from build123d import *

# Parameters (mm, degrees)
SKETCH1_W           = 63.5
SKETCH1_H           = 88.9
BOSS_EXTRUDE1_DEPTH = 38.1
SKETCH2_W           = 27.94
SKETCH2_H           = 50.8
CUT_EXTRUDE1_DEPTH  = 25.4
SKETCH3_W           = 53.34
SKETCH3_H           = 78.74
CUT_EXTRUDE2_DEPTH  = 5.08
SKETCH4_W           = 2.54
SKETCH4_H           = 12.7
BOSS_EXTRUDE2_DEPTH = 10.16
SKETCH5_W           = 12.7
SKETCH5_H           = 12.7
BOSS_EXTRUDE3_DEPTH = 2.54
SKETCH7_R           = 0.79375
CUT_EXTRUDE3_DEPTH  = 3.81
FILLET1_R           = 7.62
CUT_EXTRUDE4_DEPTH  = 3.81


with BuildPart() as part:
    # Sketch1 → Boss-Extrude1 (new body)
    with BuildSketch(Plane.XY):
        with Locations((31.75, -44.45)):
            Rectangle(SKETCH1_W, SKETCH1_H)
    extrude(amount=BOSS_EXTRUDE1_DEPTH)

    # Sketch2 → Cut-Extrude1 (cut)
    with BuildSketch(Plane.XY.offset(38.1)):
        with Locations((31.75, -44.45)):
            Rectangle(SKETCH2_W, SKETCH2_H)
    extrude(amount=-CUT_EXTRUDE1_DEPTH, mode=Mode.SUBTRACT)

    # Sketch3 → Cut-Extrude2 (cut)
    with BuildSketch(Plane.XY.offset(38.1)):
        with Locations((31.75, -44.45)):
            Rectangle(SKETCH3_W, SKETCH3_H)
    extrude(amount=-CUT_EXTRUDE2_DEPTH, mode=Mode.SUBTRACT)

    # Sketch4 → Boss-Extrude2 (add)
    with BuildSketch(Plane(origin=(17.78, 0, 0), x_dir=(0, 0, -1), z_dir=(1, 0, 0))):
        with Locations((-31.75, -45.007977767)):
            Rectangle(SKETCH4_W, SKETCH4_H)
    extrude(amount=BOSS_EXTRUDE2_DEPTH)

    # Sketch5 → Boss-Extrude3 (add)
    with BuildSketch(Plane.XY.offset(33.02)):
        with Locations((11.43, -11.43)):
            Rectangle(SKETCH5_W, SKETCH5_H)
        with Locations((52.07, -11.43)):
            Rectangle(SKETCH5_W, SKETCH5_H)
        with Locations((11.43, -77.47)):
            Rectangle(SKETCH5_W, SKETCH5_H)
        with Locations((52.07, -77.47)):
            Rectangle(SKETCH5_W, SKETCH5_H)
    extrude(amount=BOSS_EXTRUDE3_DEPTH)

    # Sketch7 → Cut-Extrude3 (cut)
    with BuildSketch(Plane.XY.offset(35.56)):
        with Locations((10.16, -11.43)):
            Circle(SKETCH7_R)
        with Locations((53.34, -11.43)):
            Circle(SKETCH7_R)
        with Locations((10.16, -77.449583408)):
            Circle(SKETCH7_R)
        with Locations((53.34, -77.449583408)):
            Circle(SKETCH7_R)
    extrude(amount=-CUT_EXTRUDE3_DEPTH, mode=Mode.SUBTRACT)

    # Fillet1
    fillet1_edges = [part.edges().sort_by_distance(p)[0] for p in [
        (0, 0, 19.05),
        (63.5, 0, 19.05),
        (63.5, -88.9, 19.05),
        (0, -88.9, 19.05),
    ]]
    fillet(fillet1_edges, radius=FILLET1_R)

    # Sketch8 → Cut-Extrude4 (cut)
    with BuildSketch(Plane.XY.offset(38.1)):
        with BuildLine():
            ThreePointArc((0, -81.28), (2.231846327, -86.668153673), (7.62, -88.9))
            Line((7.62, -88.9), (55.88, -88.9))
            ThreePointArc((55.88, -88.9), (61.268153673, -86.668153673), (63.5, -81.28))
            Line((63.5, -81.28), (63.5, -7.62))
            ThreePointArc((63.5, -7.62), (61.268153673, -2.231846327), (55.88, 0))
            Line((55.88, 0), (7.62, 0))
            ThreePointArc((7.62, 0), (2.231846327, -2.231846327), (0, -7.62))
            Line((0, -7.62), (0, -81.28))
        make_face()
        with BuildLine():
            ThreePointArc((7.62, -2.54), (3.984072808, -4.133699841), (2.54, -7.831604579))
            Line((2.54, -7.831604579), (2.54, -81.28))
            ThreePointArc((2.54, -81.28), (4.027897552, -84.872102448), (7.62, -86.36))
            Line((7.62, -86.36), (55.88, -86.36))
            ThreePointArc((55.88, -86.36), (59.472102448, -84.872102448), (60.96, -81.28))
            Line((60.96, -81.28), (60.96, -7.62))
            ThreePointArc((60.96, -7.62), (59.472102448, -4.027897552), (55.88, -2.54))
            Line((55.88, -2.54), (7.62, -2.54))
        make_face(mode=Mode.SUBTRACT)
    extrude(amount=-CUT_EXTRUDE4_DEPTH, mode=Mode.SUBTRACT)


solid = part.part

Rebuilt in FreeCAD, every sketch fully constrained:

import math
import FreeCAD as App
import Part
import Sketcher

V = App.Vector
Q = App.Units.Quantity


def edges_at(feature, points):
    """Names of the edges that pass closest to the given points."""
    edges = feature.Shape.Edges
    near = lambda p: min(range(len(edges)), key=lambda i: edges[i].distToShape(Part.Vertex(*p))[0])
    return sorted({f"Edge{near(p) + 1}" for p in points})

doc = App.newDocument("Part")
body = doc.addObject("PartDesign::Body", "Body")

# Sketch on XY plane
sketch1 = doc.addObject("Sketcher::SketchObject", "Sketch")
body.addObject(sketch1)
sketch1.AttachmentSupport = (doc.XY_Plane, [""])
sketch1.MapMode = "FlatFace"
sketch1.addGeometry([
    Part.LineSegment(V(0, 0, 0), V(0, -89, 0)),
    Part.LineSegment(V(0, -89, 0), V(64, -89, 0)),
    Part.LineSegment(V(64, -89, 0), V(64, 0, 0)),
    Part.LineSegment(V(64, 0, 0), V(0, 0, 0)),
], False)
sketch1.addConstraint([
    Sketcher.Constraint("Coincident", 0, 2, 1, 1),
    Sketcher.Constraint("Coincident", 1, 2, 2, 1),
    Sketcher.Constraint("Coincident", 2, 2, 3, 1),
    Sketcher.Constraint("Coincident", 3, 2, 0, 1),
    Sketcher.Constraint("Vertical", 0),
    Sketcher.Constraint("Horizontal", 1),
    Sketcher.Constraint("Vertical", 2),
    Sketcher.Constraint("Horizontal", 3),
    Sketcher.Constraint("Coincident", 3, 2, -1, 1),
    Sketcher.Constraint("DistanceX", 1, 1, 1, 2, Q("2.5 in")),
    Sketcher.Constraint("DistanceY", 0, 2, 0, 1, Q("3.5 in")),
])
pad1 = doc.addObject("PartDesign::Pad", "Pad")
body.addObject(pad1)
pad1.Profile = sketch1
pad1.Length = Q("1.5 in")

# Sketch on XY plane
sketch2 = doc.addObject("Sketcher::SketchObject", "Sketch001")
body.addObject(sketch2)
sketch2.AttachmentSupport = (doc.XY_Plane, [""])
sketch2.MapMode = "FlatFace"
sketch2.AttachmentOffset = App.Placement(V(0, 0, 1.5 * 25.4), App.Rotation())
sketch2.addGeometry([
    Part.LineSegment(V(18, -19, 0), V(18, -70, 0)),
    Part.LineSegment(V(18, -70, 0), V(46, -70, 0)),
    Part.LineSegment(V(46, -70, 0), V(46, -19, 0)),
    Part.LineSegment(V(46, -19, 0), V(18, -19, 0)),
], False)
sketch2.addConstraint([
    Sketcher.Constraint("Coincident", 0, 2, 1, 1),
    Sketcher.Constraint("Coincident", 1, 2, 2, 1),
    Sketcher.Constraint("Coincident", 2, 2, 3, 1),
    Sketcher.Constraint("Coincident", 3, 2, 0, 1),
    Sketcher.Constraint("Vertical", 0),
    Sketcher.Constraint("Horizontal", 1),
    Sketcher.Constraint("Vertical", 2),
    Sketcher.Constraint("Horizontal", 3),
    Sketcher.Constraint("DistanceY", 0, 2, 0, 1, Q("2 in")),
    Sketcher.Constraint("DistanceX", 1, 1, 1, 2, Q("1.1 in")),
    Sketcher.Constraint("DistanceX", -1, 1, 0, 2, Q("0.7 in")),
    Sketcher.Constraint("DistanceY", 0, 2, -1, 1, Q("2.75 in")),
])
pocket1 = doc.addObject("PartDesign::Pocket", "Pocket")
body.addObject(pocket1)
pocket1.Profile = sketch2
pocket1.Length = Q("1 in")

# Sketch on XY plane
sketch3 = doc.addObject("Sketcher::SketchObject", "Sketch002")
body.addObject(sketch3)
sketch3.AttachmentSupport = (doc.XY_Plane, [""])
sketch3.MapMode = "FlatFace"
sketch3.AttachmentOffset = App.Placement(V(0, 0, 1.5 * 25.4), App.Rotation())
sketch3.addGeometry([
    Part.LineSegment(V(5, -5, 0), V(5, -84, 0)),
    Part.LineSegment(V(5, -84, 0), V(58, -84, 0)),
    Part.LineSegment(V(58, -84, 0), V(58, -5, 0)),
    Part.LineSegment(V(58, -5, 0), V(5, -5, 0)),
], False)
sketch3.addConstraint([
    Sketcher.Constraint("Coincident", 0, 2, 1, 1),
    Sketcher.Constraint("Coincident", 1, 2, 2, 1),
    Sketcher.Constraint("Coincident", 2, 2, 3, 1),
    Sketcher.Constraint("Coincident", 3, 2, 0, 1),
    Sketcher.Constraint("Vertical", 0),
    Sketcher.Constraint("Horizontal", 1),
    Sketcher.Constraint("Vertical", 2),
    Sketcher.Constraint("Horizontal", 3),
    Sketcher.Constraint("DistanceX", 1, 1, 1, 2, Q("2.1 in")),
    Sketcher.Constraint("DistanceY", 0, 2, 0, 1, Q("3.1 in")),
    Sketcher.Constraint("DistanceX", -1, 1, 0, 2, Q("0.2 in")),
    Sketcher.Constraint("DistanceY", 0, 2, -1, 1, Q("3.3 in")),
])
pocket2 = doc.addObject("PartDesign::Pocket", "Pocket001")
body.addObject(pocket2)
pocket2.Profile = sketch3
pocket2.Length = Q("0.2 in")

# Sketch on YZ plane
sketch4 = doc.addObject("Sketcher::SketchObject", "Sketch003")
body.addObject(sketch4)
sketch4.AttachmentSupport = (doc.YZ_Plane, [""])
sketch4.MapMode = "FlatFace"
sketch4.AttachmentOffset = App.Placement(V(0, 0, 0.7 * 25.4), App.Rotation())
sketch4.addGeometry([
    Part.LineSegment(V(-38.7, 33, 0), V(-51.4, 33, 0)),
    Part.LineSegment(V(-51.4, 33, 0), V(-51.4, 30.5, 0)),
    Part.LineSegment(V(-51.4, 30.5, 0), V(-38.7, 30.5, 0)),
    Part.LineSegment(V(-38.7, 30.5, 0), V(-38.7, 33, 0)),
], False)
sketch4.addConstraint([
    Sketcher.Constraint("Coincident", 0, 2, 1, 1),
    Sketcher.Constraint("Coincident", 1, 2, 2, 1),
    Sketcher.Constraint("Coincident", 2, 2, 3, 1),
    Sketcher.Constraint("Coincident", 3, 2, 0, 1),
    Sketcher.Constraint("Horizontal", 0),
    Sketcher.Constraint("Vertical", 1),
    Sketcher.Constraint("Horizontal", 2),
    Sketcher.Constraint("Vertical", 3),
    Sketcher.Constraint("DistanceX", 0, 2, 0, 1, Q("0.5 in")),
    Sketcher.Constraint("DistanceY", 1, 2, 1, 1, Q("0.1 in")),
    Sketcher.Constraint("DistanceY", -1, 1, 0, 2, Q("1.3 in")),
    Sketcher.Constraint("DistanceX", 0, 2, -1, 1, Q("51.357978 mm")),
])
pad2 = doc.addObject("PartDesign::Pad", "Pad001")
body.addObject(pad2)
pad2.Profile = sketch4
pad2.Length = Q("0.4 in")

# Sketch on XY plane
sketch5 = doc.addObject("Sketcher::SketchObject", "Sketch004")
body.addObject(sketch5)
sketch5.AttachmentSupport = (doc.XY_Plane, [""])
sketch5.MapMode = "FlatFace"
sketch5.AttachmentOffset = App.Placement(V(0, 0, 1.3 * 25.4), App.Rotation())
sketch5.addGeometry([
    Part.LineSegment(V(5, -5, 0), V(5, -18, 0)),  # 0
    Part.LineSegment(V(5, -18, 0), V(18, -18, 0)),  # 1
    Part.LineSegment(V(18, -18, 0), V(18, -5, 0)),  # 2
    Part.LineSegment(V(18, -5, 0), V(5, -5, 0)),  # 3
    Part.LineSegment(V(46, -5, 0), V(46, -18, 0)),  # 4
    Part.LineSegment(V(46, -18, 0), V(58, -18, 0)),  # 5
    Part.LineSegment(V(58, -18, 0), V(58, -5, 0)),  # 6
    Part.LineSegment(V(58, -5, 0), V(46, -5, 0)),  # 7
    Part.LineSegment(V(5, -71, 0), V(5, -84, 0)),  # 8
    Part.LineSegment(V(5, -84, 0), V(18, -84, 0)),  # 9
    Part.LineSegment(V(18, -84, 0), V(18, -71, 0)),  # 10
    Part.LineSegment(V(18, -71, 0), V(5, -71, 0)),  # 11
    Part.LineSegment(V(46, -71, 0), V(46, -84, 0)),  # 12
    Part.LineSegment(V(46, -84, 0), V(58, -84, 0)),  # 13
    Part.LineSegment(V(58, -84, 0), V(58, -71, 0)),  # 14
    Part.LineSegment(V(58, -71, 0), V(46, -71, 0)),  # 15
], False)
sketch5.addConstraint([
    Sketcher.Constraint("Coincident", 0, 2, 1, 1),
    Sketcher.Constraint("Coincident", 1, 2, 2, 1),
    Sketcher.Constraint("Coincident", 2, 2, 3, 1),
    Sketcher.Constraint("Coincident", 3, 2, 0, 1),
    Sketcher.Constraint("Coincident", 4, 2, 5, 1),
    Sketcher.Constraint("Coincident", 5, 2, 6, 1),
    Sketcher.Constraint("Coincident", 6, 2, 7, 1),
    Sketcher.Constraint("Coincident", 7, 2, 4, 1),
    Sketcher.Constraint("Coincident", 8, 2, 9, 1),
    Sketcher.Constraint("Coincident", 9, 2, 10, 1),
    Sketcher.Constraint("Coincident", 10, 2, 11, 1),
    Sketcher.Constraint("Coincident", 11, 2, 8, 1),
    Sketcher.Constraint("Coincident", 12, 2, 13, 1),
    Sketcher.Constraint("Coincident", 13, 2, 14, 1),
    Sketcher.Constraint("Coincident", 14, 2, 15, 1),
    Sketcher.Constraint("Coincident", 15, 2, 12, 1),
    Sketcher.Constraint("Vertical", 0),
    Sketcher.Constraint("Horizontal", 1),
    Sketcher.Constraint("Vertical", 2),
    Sketcher.Constraint("Horizontal", 3),
    Sketcher.Constraint("Vertical", 4),
    Sketcher.Constraint("Horizontal", 5),
    Sketcher.Constraint("Vertical", 6),
    Sketcher.Constraint("Horizontal", 7),
    Sketcher.Constraint("Vertical", 8),
    Sketcher.Constraint("Horizontal", 9),
    Sketcher.Constraint("Vertical", 10),
    Sketcher.Constraint("Horizontal", 11),
    Sketcher.Constraint("Vertical", 12),
    Sketcher.Constraint("Horizontal", 13),
    Sketcher.Constraint("Vertical", 14),
    Sketcher.Constraint("Horizontal", 15),
    Sketcher.Constraint("Horizontal", 1, 2, 4, 2),
    Sketcher.Constraint("Horizontal", 3, 2, 6, 2),
    Sketcher.Constraint("Horizontal", 9, 2, 12, 2),
    Sketcher.Constraint("Horizontal", 11, 2, 14, 2),
    Sketcher.Constraint("Vertical", 3, 2, 8, 2),
    Sketcher.Constraint("Vertical", 2, 2, 9, 2),
    Sketcher.Constraint("Vertical", 7, 2, 12, 2),
    Sketcher.Constraint("Vertical", 6, 2, 13, 2),
    Sketcher.Constraint("Equal", 3, 5),
    Sketcher.Constraint("Equal", 15, 0),
    Sketcher.Constraint("Equal", 6, 8),
    Sketcher.Constraint("DistanceX", 1, 1, 1, 2, Q("0.5 in")),
    Sketcher.Constraint("DistanceX", -1, 1, 0, 2, Q("0.2 in")),
    Sketcher.Constraint("DistanceY", 0, 2, -1, 1, Q("0.7 in")),
    Sketcher.Constraint("DistanceX", -1, 1, 4, 2, Q("1.8 in")),
    Sketcher.Constraint("DistanceY", 8, 2, -1, 1, Q("3.3 in")),
])
pad3 = doc.addObject("PartDesign::Pad", "Pad002")
body.addObject(pad3)
pad3.Profile = sketch5
pad3.Length = Q("0.1 in")

# Sketch on XY plane
sketch6 = doc.addObject("Sketcher::SketchObject", "Sketch005")
body.addObject(sketch6)
sketch6.AttachmentSupport = (doc.XY_Plane, [""])
sketch6.MapMode = "FlatFace"
sketch6.AttachmentOffset = App.Placement(V(0, 0, 1.4 * 25.4), App.Rotation())
sketch6.addGeometry([
    Part.Circle(V(10.2, -11.4, 0), V(0, 0, 1), 0.8),
    Part.Circle(V(53.3, -11.4, 0), V(0, 0, 1), 0.8),
    Part.Circle(V(10.2, -77.4, 0), V(0, 0, 1), 0.8),
    Part.Circle(V(53.3, -77.4, 0), V(0, 0, 1), 0.8),
], False)
sketch6.addConstraint([
    Sketcher.Constraint("Equal", 0, 1),
    Sketcher.Constraint("Equal", 1, 2),
    Sketcher.Constraint("Equal", 2, 3),
    Sketcher.Constraint("Horizontal", 0, 3, 1, 3),
    Sketcher.Constraint("Horizontal", 2, 3, 3, 3),
    Sketcher.Constraint("Vertical", 0, 3, 2, 3),
    Sketcher.Constraint("Vertical", 1, 3, 3, 3),
    Sketcher.Constraint("Diameter", 0, Q("0.0625 in")),
    Sketcher.Constraint("DistanceX", -1, 1, 0, 3, Q("0.4 in")),
    Sketcher.Constraint("DistanceX", -1, 1, 1, 3, Q("2.1 in")),
    Sketcher.Constraint("DistanceY", 0, 3, -1, 1, Q("0.45 in")),
    Sketcher.Constraint("DistanceY", 2, 3, -1, 1, Q("77.449583 mm")),
])
pocket3 = doc.addObject("PartDesign::Pocket", "Pocket002")
body.addObject(pocket3)
pocket3.Profile = sketch6
pocket3.Length = Q("0.15 in")
doc.recompute()

fillet = doc.addObject("PartDesign::Fillet", "Fillet")
body.addObject(fillet)
fillet.Base = (pocket3, edges_at(pocket3, [
    (0, 0, 19.05),
    (63.5, 0, 19.05),
    (63.5, -88.9, 19.05),
    (0, -88.9, 19.05),
]))
fillet.Radius = Q("0.3 in")

# Sketch on XY plane
sketch7 = doc.addObject("Sketcher::SketchObject", "Sketch006")
body.addObject(sketch7)
sketch7.AttachmentSupport = (doc.XY_Plane, [""])
sketch7.MapMode = "FlatFace"
sketch7.AttachmentOffset = App.Placement(V(0, 0, 1.5 * 25.4), App.Rotation())
sketch7.addGeometry([
    Part.ArcOfCircle(Part.Circle(V(8, -81, 0), V(0, 0, 1), 8), math.radians(180), math.radians(270)),  # 0
    Part.LineSegment(V(8, -89, 0), V(56, -89, 0)),  # 1
    Part.ArcOfCircle(Part.Circle(V(56, -81, 0), V(0, 0, 1), 8), math.radians(-90), math.radians(0)),  # 2
    Part.LineSegment(V(64, -81, 0), V(64, -8, 0)),  # 3
    Part.ArcOfCircle(Part.Circle(V(56, -8, 0), V(0, 0, 1), 8), math.radians(0), math.radians(90)),  # 4
    Part.LineSegment(V(56, 0, 0), V(8, 0, 0)),  # 5
    Part.ArcOfCircle(Part.Circle(V(8, -8, 0), V(0, 0, 1), 8), math.radians(90), math.radians(180)),  # 6
    Part.LineSegment(V(0, -8, 0), V(0, -81, 0)),  # 7
    Part.ArcOfCircle(Part.Circle(V(8, -8, 0), V(0, 0, 1), 5), math.radians(91), math.radians(181)),  # 8
    Part.LineSegment(V(8, -3, 0), V(56, -3, 0)),  # 9
    Part.ArcOfCircle(Part.Circle(V(56, -8, 0), V(0, 0, 1), 5), math.radians(0), math.radians(90)),  # 10
    Part.LineSegment(V(61, -8, 0), V(61, -81, 0)),  # 11
    Part.ArcOfCircle(Part.Circle(V(56, -81, 0), V(0, 0, 1), 5), math.radians(-90), math.radians(0)),  # 12
    Part.LineSegment(V(56, -86, 0), V(8, -86, 0)),  # 13
    Part.ArcOfCircle(Part.Circle(V(8, -81, 0), V(0, 0, 1), 5), math.radians(-180), math.radians(-90)),  # 14
    Part.LineSegment(V(3, -81, 0), V(3, -8, 0)),  # 15
], False)
sketch7.addConstraint([
    Sketcher.Constraint("Tangent", 0, 2, 1, 1),
    Sketcher.Constraint("Tangent", 1, 2, 2, 1),
    Sketcher.Constraint("Tangent", 2, 2, 3, 1),
    Sketcher.Constraint("Tangent", 3, 2, 4, 1),
    Sketcher.Constraint("Tangent", 4, 2, 5, 1),
    Sketcher.Constraint("Tangent", 5, 2, 6, 1),
    Sketcher.Constraint("Tangent", 6, 2, 7, 1),
    Sketcher.Constraint("Tangent", 7, 2, 0, 1),
    Sketcher.Constraint("Coincident", 8, 1, 9, 1),
    Sketcher.Constraint("Tangent", 9, 2, 10, 2),
    Sketcher.Constraint("Tangent", 10, 1, 11, 1),
    Sketcher.Constraint("Tangent", 11, 2, 12, 2),
    Sketcher.Constraint("Tangent", 12, 1, 13, 1),
    Sketcher.Constraint("Tangent", 13, 2, 14, 2),
    Sketcher.Constraint("Tangent", 14, 1, 15, 1),
    Sketcher.Constraint("Coincident", 15, 2, 8, 2),
    Sketcher.Constraint("Horizontal", 1),
    Sketcher.Constraint("Vertical", 3),
    Sketcher.Constraint("Horizontal", 5),
    Sketcher.Constraint("Vertical", 7),
    Sketcher.Constraint("Horizontal", 9),
    Sketcher.Constraint("Vertical", 11),
    Sketcher.Constraint("Horizontal", 13),
    Sketcher.Constraint("Vertical", 15),
    Sketcher.Constraint("Coincident", 10, 3, 4, 3),
    Sketcher.Constraint("Coincident", 12, 3, 2, 3),
    Sketcher.Constraint("Coincident", 14, 3, 0, 3),
    Sketcher.Constraint("Equal", 0, 2),
    Sketcher.Constraint("Equal", 2, 4),
    Sketcher.Constraint("Equal", 4, 6),
    Sketcher.Constraint("PointOnObject", 4, 2, -1),
    Sketcher.Constraint("PointOnObject", 6, 2, -2),
    Sketcher.Constraint("Vertical", 5, 2, 8, 1),
    Sketcher.Constraint("Radius", 0, Q("0.3 in")),
    Sketcher.Constraint("Radius", 10, Q("0.2 in")),
    Sketcher.Constraint("DistanceX", 1, 1, 1, 2, Q("1.9 in")),
    Sketcher.Constraint("DistanceY", 3, 1, 3, 2, Q("2.9 in")),
    Sketcher.Constraint("Radius", 8, Q("5.186881 mm")),
    Sketcher.Constraint("DistanceY", 15, 1, 15, 2, Q("73.448395 mm")),
])
pocket4 = doc.addObject("PartDesign::Pocket", "Pocket003")
body.addObject(pocket4)
pocket4.Profile = sketch7
pocket4.Length = Q("0.15 in")

doc.recompute()
